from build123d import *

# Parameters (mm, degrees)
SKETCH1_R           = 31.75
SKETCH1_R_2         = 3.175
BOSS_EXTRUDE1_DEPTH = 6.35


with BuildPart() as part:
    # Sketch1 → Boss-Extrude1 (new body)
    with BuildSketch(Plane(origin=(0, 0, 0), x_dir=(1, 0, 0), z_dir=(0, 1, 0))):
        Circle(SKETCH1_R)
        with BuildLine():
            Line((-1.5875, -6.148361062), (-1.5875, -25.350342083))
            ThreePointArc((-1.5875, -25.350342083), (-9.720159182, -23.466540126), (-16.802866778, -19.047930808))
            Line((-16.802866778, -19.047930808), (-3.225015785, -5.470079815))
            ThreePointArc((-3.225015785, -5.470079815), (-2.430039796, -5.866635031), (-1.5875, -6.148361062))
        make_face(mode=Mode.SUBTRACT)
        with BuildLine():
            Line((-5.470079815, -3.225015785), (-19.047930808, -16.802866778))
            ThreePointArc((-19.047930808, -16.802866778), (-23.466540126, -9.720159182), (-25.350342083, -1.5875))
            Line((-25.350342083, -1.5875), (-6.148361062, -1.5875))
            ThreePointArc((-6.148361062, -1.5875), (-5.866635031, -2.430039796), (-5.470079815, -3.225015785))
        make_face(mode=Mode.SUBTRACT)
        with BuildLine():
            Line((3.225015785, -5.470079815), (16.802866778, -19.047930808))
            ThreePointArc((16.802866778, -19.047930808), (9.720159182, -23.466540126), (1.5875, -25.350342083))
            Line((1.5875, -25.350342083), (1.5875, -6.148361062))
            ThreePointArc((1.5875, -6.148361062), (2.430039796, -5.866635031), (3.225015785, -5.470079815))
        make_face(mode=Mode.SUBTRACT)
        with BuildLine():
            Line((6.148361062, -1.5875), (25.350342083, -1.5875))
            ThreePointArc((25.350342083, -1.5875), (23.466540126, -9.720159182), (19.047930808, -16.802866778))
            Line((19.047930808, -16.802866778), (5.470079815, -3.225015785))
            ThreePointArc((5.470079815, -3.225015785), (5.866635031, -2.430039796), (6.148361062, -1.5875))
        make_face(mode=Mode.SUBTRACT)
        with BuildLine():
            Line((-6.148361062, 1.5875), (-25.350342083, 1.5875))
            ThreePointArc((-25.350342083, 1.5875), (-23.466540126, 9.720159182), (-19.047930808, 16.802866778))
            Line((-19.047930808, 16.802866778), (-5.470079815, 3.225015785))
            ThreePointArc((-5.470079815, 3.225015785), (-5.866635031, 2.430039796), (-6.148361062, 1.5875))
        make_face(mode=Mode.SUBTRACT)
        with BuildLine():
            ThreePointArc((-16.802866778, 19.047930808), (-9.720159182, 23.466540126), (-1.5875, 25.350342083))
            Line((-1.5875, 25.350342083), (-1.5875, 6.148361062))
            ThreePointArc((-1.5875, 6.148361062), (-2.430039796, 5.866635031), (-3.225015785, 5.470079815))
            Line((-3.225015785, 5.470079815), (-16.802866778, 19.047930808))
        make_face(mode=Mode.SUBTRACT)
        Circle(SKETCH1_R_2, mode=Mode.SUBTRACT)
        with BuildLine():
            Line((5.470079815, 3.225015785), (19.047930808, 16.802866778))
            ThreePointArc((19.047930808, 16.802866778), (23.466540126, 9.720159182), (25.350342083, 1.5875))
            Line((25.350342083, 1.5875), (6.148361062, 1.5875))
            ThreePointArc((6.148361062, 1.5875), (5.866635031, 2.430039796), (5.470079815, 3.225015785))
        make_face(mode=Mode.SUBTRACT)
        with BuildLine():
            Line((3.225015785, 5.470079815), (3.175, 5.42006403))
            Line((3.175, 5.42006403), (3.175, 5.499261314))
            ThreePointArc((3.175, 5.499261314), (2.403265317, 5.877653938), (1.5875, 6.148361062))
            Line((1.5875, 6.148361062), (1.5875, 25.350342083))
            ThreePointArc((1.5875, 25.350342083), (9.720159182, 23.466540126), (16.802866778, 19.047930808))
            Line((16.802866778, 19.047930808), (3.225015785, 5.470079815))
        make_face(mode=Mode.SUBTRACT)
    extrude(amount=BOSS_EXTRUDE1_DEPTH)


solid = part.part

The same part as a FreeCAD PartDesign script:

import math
import FreeCAD as App
import Part
import Sketcher

V = App.Vector
Q = App.Units.Quantity

doc = App.newDocument("Part")
body = doc.addObject("PartDesign::Body", "Body")

# Sketch on XZ plane
sketch1 = doc.addObject("Sketcher::SketchObject", "Sketch")
body.addObject(sketch1)
sketch1.AttachmentSupport = (doc.XZ_Plane, [""])
sketch1.MapMode = "FlatFace"
sketch1.addGeometry(Part.Circle(V(0, 0, 0), V(0, 0, 1), 31.75), False)
sketch1.addGeometry(Part.ArcOfCircle(Part.Circle(V(0, 0, 0), V(0, 0, 1), 6.35), math.radians(104.48), math.radians(120.52)), False)
sketch1.addGeometry(Part.LineSegment(V(-1.59, 6.15, 0), V(-1.59, 25.35, 0)), False)
sketch1.addGeometry(Part.ArcOfCircle(Part.Circle(V(0, 0, 0), V(0, 0, 1), 25.4), math.radians(94), math.radians(131)), False)
sketch1.addGeometry(Part.LineSegment(V(-16.8, 19.05, 0), V(-3.23, 5.47, 0)), False)
sketch1.addGeometry(Part.ArcOfCircle(Part.Circle(V(0, 0, 0), V(0, 0, 1), 6.35), math.radians(149.48), math.radians(165.52)), False)
sketch1.addGeometry(Part.LineSegment(V(-5.47, 3.23, 0), V(-19.05, 16.8, 0)), False)
sketch1.addGeometry(Part.ArcOfCircle(Part.Circle(V(0, 0, 0), V(0, 0, 1), 25.4), math.radians(139), math.radians(176)), False)
sketch1.addGeometry(Part.LineSegment(V(-25.35, 1.59, 0), V(-6.15, 1.59, 0)), False)
sketch1.addGeometry(Part.ArcOfCircle(Part.Circle(V(0, 0, 0), V(0, 0, 1), 6.35), math.radians(59.48), math.radians(75.52)), False)
sketch1.addGeometry(Part.LineSegment(V(3.23, 5.47, 0), V(16.8, 19.05, 0)), False)
sketch1.addGeometry(Part.ArcOfCircle(Part.Circle(V(0, 0, 0), V(0, 0, 1), 25.4), math.radians(49), math.radians(86)), False)
sketch1.addGeometry(Part.LineSegment(V(1.59, 25.35, 0), V(1.59, 6.15, 0)), False)
sketch1.addGeometry(Part.ArcOfCircle(Part.Circle(V(0, 0, 0), V(0, 0, 1), 6.35), math.radians(14.48), math.radians(30.52)), False)
sketch1.addGeometry(Part.LineSegment(V(6.15, 1.59, 0), V(25.35, 1.59, 0)), False)
sketch1.addGeometry(Part.ArcOfCircle(Part.Circle(V(0, 0, 0), V(0, 0, 1), 25.4), math.radians(4), math.radians(41)), False)
sketch1.addGeometry(Part.LineSegment(V(19.05, 16.8, 0), V(5.47, 3.23, 0)), False)
sketch1.addGeometry(Part.ArcOfCircle(Part.Circle(V(0, 0, 0), V(0, 0, 1), 6.35), math.radians(-165.52), math.radians(-149.48)), False)
sketch1.addGeometry(Part.LineSegment(V(-6.15, -1.59, 0), V(-25.35, -1.59, 0)), False)
sketch1.addGeometry(Part.ArcOfCircle(Part.Circle(V(0, 0, 0), V(0, 0, 1), 25.4), math.radians(-176), math.radians(-139)), False)
sketch1.addGeometry(Part.LineSegment(V(-19.05, -16.8, 0), V(-5.47, -3.23, 0)), False)
sketch1.addGeometry(Part.LineSegment(V(-3.23, -5.47, 0), V(-16.8, -19.05, 0)), False)
sketch1.addGeometry(Part.ArcOfCircle(Part.Circle(V(0, 0, 0), V(0, 0, 1), 25.4), math.radians(-131), math.radians(-94)), False)
sketch1.addGeometry(Part.LineSegment(V(-1.59, -25.35, 0), V(-1.59, -6.15, 0)), False)
sketch1.addGeometry(Part.ArcOfCircle(Part.Circle(V(0, 0, 0), V(0, 0, 1), 6.35), math.radians(-120.52), math.radians(-104.48)), False)
sketch1.addGeometry(Part.Circle(V(0, 0, 0), V(0, 0, 1), 3.17), False)
sketch1.addGeometry(Part.ArcOfCircle(Part.Circle(V(0, 0, 0), V(0, 0, 1), 6.35), math.radians(-30.52), math.radians(-14.48)), False)
sketch1.addGeometry(Part.LineSegment(V(5.47, -3.23, 0), V(19.05, -16.8, 0)), False)
sketch1.addGeometry(Part.ArcOfCircle(Part.Circle(V(0, 0, 0), V(0, 0, 1), 25.4), math.radians(-41), math.radians(-4)), False)
sketch1.addGeometry(Part.LineSegment(V(25.35, -1.59, 0), V(6.15, -1.59, 0)), False)
sketch1.addGeometry(Part.LineSegment(V(16.8, -19.05, 0), V(3.17, -5.42, 0)), False)
sketch1.addGeometry(Part.LineSegment(V(3.17, -5.42, 0), V(3.17, -5.5, 0)), False)
sketch1.addGeometry(Part.ArcOfCircle(Part.Circle(V(0, 0, 0), V(0, 0, 1), 6.35), math.radians(-75.52), math.radians(-60)), False)
sketch1.addGeometry(Part.LineSegment(V(1.59, -6.15, 0), V(1.59, -25.35, 0)), False)
sketch1.addGeometry(Part.ArcOfCircle(Part.Circle(V(0, 0, 0), V(0, 0, 1), 25.4), math.radians(-86), math.radians(-49)), False)
sketch1.addConstraint(Sketcher.Constraint("Coincident", 1, 1, 2, 1))
sketch1.addConstraint(Sketcher.Constraint("Coincident", 2, 2, 3, 1))
sketch1.addConstraint(Sketcher.Constraint("Coincident", 3, 2, 4, 1))
sketch1.addConstraint(Sketcher.Constraint("Coincident", 4, 2, 1, 2))
sketch1.addConstraint(Sketcher.Constraint("Coincident", 5, 1, 6, 1))
sketch1.addConstraint(Sketcher.Constraint("Coincident", 6, 2, 7, 1))
sketch1.addConstraint(Sketcher.Constraint("Coincident", 7, 2, 8, 1))
sketch1.addConstraint(Sketcher.Constraint("Coincident", 8, 2, 5, 2))
sketch1.addConstraint(Sketcher.Constraint("Coincident", 9, 1, 10, 1))
sketch1.addConstraint(Sketcher.Constraint("Coincident", 10, 2, 11, 1))
sketch1.addConstraint(Sketcher.Constraint("Coincident", 11, 2, 12, 1))
sketch1.addConstraint(Sketcher.Constraint("Coincident", 12, 2, 9, 2))
sketch1.addConstraint(Sketcher.Constraint("Coincident", 13, 1, 14, 1))
sketch1.addConstraint(Sketcher.Constraint("Coincident", 14, 2, 15, 1))
sketch1.addConstraint(Sketcher.Constraint("Coincident", 15, 2, 16, 1))
sketch1.addConstraint(Sketcher.Constraint("Coincident", 16, 2, 13, 2))
sketch1.addConstraint(Sketcher.Constraint("Coincident", 17, 1, 18, 1))
sketch1.addConstraint(Sketcher.Constraint("Coincident", 18, 2, 19, 1))
sketch1.addConstraint(Sketcher.Constraint("Coincident", 19, 2, 20, 1))
sketch1.addConstraint(Sketcher.Constraint("Coincident", 20, 2, 17, 2))
sketch1.addConstraint(Sketcher.Constraint("Coincident", 21, 2, 22, 1))
sketch1.addConstraint(Sketcher.Constraint("Coincident", 22, 2, 23, 1))
sketch1.addConstraint(Sketcher.Constraint("Coincident", 23, 2, 24, 2))
sketch1.addConstraint(Sketcher.Constraint("Coincident", 24, 1, 21, 1))
sketch1.addConstraint(Sketcher.Constraint("Coincident", 26, 1, 27, 1))
sketch1.addConstraint(Sketcher.Constraint("Coincident", 27, 2, 28, 1))
sketch1.addConstraint(Sketcher.Constraint("Coincident", 28, 2, 29, 1))
sketch1.addConstraint(Sketcher.Constraint("Coincident", 29, 2, 26, 2))
sketch1.addConstraint(Sketcher.Constraint("Coincident", 30, 2, 31, 1))
sketch1.addConstraint(Sketcher.Constraint("Coincident", 31, 2, 32, 2))
sketch1.addConstraint(Sketcher.Constraint("Coincident", 32, 1, 33, 1))
sketch1.addConstraint(Sketcher.Constraint("Coincident", 33, 2, 34, 1))
sketch1.addConstraint(Sketcher.Constraint("Coincident", 34, 2, 30, 1))
sketch1.addConstraint(Sketcher.Constraint("Vertical", 2))
sketch1.addConstraint(Sketcher.Constraint("Horizontal", 8))
sketch1.addConstraint(Sketcher.Constraint("Vertical", 12))
sketch1.addConstraint(Sketcher.Constraint("Horizontal", 14))
sketch1.addConstraint(Sketcher.Constraint("Horizontal", 18))
sketch1.addConstraint(Sketcher.Constraint("Vertical", 23))
sketch1.addConstraint(Sketcher.Constraint("Horizontal", 29))
sketch1.addConstraint(Sketcher.Constraint("Vertical", 31))
sketch1.addConstraint(Sketcher.Constraint("Vertical", 33))
sketch1.addConstraint(Sketcher.Constraint("Coincident", 0, 3, -1, 1))
sketch1.addConstraint(Sketcher.Constraint("Coincident", 1, 3, -1, 1))
sketch1.addConstraint(Sketcher.Constraint("Coincident", 3, 3, -1, 1))
sketch1.addConstraint(Sketcher.Constraint("Coincident", 5, 3, -1, 1))
sketch1.addConstraint(Sketcher.Constraint("Coincident", 7, 3, -1, 1))
sketch1.addConstraint(Sketcher.Constraint("Coincident", 9, 3, -1, 1))
sketch1.addConstraint(Sketcher.Constraint("Coincident", 11, 3, -1, 1))
sketch1.addConstraint(Sketcher.Constraint("Coincident", 13, 3, -1, 1))
sketch1.addConstraint(Sketcher.Constraint("Coincident", 15, 3, -1, 1))
sketch1.addConstraint(Sketcher.Constraint("Coincident", 17, 3, -1, 1))
sketch1.addConstraint(Sketcher.Constraint("Coincident", 19, 3, -1, 1))
sketch1.addConstraint(Sketcher.Constraint("Coincident", 22, 3, -1, 1))
sketch1.addConstraint(Sketcher.Constraint("Coincident", 24, 3, -1, 1))
sketch1.addConstraint(Sketcher.Constraint("Coincident", 25, 3, -1, 1))
sketch1.addConstraint(Sketcher.Constraint("Coincident", 26, 3, -1, 1))
sketch1.addConstraint(Sketcher.Constraint("Coincident", 28, 3, -1, 1))
sketch1.addConstraint(Sketcher.Constraint("Coincident", 32, 3, -1, 1))
sketch1.addConstraint(Sketcher.Constraint("Coincident", 34, 3, -1, 1))
sketch1.addConstraint(Sketcher.Constraint("Equal", 1, 5))
sketch1.addConstraint(Sketcher.Constraint("Equal", 3, 7))
sketch1.addConstraint(Sketcher.Constraint("Equal", 5, 9))
sketch1.addConstraint(Sketcher.Constraint("Equal", 7, 11))
sketch1.addConstraint(Sketcher.Constraint("Equal", 9, 13))
sketch1.addConstraint(Sketcher.Constraint("Equal", 11, 15))
sketch1.addConstraint(Sketcher.Constraint("Equal", 13, 17))
sketch1.addConstraint(Sketcher.Constraint("Equal", 15, 19))
sketch1.addConstraint(Sketcher.Constraint("Equal", 19, 22))
sketch1.addConstraint(Sketcher.Constraint("Equal", 17, 24))
sketch1.addConstraint(Sketcher.Constraint("Equal", 24, 26))
sketch1.addConstraint(Sketcher.Constraint("Equal", 22, 28))
sketch1.addConstraint(Sketcher.Constraint("Equal", 26, 32))
sketch1.addConstraint(Sketcher.Constraint("Equal", 28, 34))
sketch1.addConstraint(Sketcher.Constraint("Parallel", 4, 6))
sketch1.addConstraint(Sketcher.Constraint("Perpendicular", 6, 10))
sketch1.addConstraint(Sketcher.Constraint("Parallel", 10, 16))
sketch1.addConstraint(Sketcher.Constraint("Parallel", 16, 20))
sketch1.addConstraint(Sketcher.Constraint("Parallel", 20, 21))
sketch1.addConstraint(Sketcher.Constraint("Perpendicular", 21, 27))
sketch1.addConstraint(Sketcher.Constraint("Parallel", 27, 30))
sketch1.addConstraint(Sketcher.Constraint("Horizontal", 4, 2, 9, 1))
sketch1.addConstraint(Sketcher.Constraint("Horizontal", 3, 2, 10, 2))
sketch1.addConstraint(Sketcher.Constraint("Horizontal", 2, 2, 11, 2))
sketch1.addConstraint(Sketcher.Constraint("Horizontal", 8, 2, 13, 1))
sketch1.addConstraint(Sketcher.Constraint("Horizontal", 6, 2, 15, 2))
sketch1.addConstraint(Sketcher.Constraint("Horizontal", 20, 2, 26, 1))
sketch1.addConstraint(Sketcher.Constraint("Horizontal", 18, 2, 28, 2))
sketch1.addConstraint(Sketcher.Constraint("Horizontal", 23, 2, 32, 1))
sketch1.addConstraint(Sketcher.Constraint("Horizontal", 21, 2, 34, 2))
sketch1.addConstraint(Sketcher.Constraint("Vertical", 8, 2, 17, 1))
sketch1.addConstraint(Sketcher.Constraint("Vertical", 6, 2, 19, 2))
sketch1.addConstraint(Sketcher.Constraint("Vertical", 3, 2, 21, 2))
sketch1.addConstraint(Sketcher.Constraint("Vertical", 2, 2, 22, 2))
sketch1.addConstraint(Sketcher.Constraint("Equal", 29, 2))
sketch1.addConstraint(Sketcher.Constraint("Equal", 4, 6))
sketch1.addConstraint(Sketcher.Constraint("Radius", 3, Q("1 in")))
sketch1.addConstraint(Sketcher.Constraint("Diameter", 0, Q("2.5 in")))
sketch1.addConstraint(Sketcher.Constraint("Diameter", 25, Q("0.25 in")))
sketch1.addConstraint(Sketcher.Constraint("Radius", 1, Q("0.25 in")))
sketch1.addConstraint(Sketcher.Constraint("DistanceX", 1, 1, -1, 1, Q("0.0625 in")))
sketch1.addConstraint(Sketcher.Constraint("DistanceX", -1, 1, 30, 2, Q("0.125 in")))
sketch1.addConstraint(Sketcher.Constraint("Distance", 4, Q("19.201981 mm")))
pad1 = doc.addObject("PartDesign::Pad", "Pad")
body.addObject(pad1)
pad1.Profile = sketch1
pad1.Length = Q("0.25 in")
pad1.Reversed = True

doc.recompute()
